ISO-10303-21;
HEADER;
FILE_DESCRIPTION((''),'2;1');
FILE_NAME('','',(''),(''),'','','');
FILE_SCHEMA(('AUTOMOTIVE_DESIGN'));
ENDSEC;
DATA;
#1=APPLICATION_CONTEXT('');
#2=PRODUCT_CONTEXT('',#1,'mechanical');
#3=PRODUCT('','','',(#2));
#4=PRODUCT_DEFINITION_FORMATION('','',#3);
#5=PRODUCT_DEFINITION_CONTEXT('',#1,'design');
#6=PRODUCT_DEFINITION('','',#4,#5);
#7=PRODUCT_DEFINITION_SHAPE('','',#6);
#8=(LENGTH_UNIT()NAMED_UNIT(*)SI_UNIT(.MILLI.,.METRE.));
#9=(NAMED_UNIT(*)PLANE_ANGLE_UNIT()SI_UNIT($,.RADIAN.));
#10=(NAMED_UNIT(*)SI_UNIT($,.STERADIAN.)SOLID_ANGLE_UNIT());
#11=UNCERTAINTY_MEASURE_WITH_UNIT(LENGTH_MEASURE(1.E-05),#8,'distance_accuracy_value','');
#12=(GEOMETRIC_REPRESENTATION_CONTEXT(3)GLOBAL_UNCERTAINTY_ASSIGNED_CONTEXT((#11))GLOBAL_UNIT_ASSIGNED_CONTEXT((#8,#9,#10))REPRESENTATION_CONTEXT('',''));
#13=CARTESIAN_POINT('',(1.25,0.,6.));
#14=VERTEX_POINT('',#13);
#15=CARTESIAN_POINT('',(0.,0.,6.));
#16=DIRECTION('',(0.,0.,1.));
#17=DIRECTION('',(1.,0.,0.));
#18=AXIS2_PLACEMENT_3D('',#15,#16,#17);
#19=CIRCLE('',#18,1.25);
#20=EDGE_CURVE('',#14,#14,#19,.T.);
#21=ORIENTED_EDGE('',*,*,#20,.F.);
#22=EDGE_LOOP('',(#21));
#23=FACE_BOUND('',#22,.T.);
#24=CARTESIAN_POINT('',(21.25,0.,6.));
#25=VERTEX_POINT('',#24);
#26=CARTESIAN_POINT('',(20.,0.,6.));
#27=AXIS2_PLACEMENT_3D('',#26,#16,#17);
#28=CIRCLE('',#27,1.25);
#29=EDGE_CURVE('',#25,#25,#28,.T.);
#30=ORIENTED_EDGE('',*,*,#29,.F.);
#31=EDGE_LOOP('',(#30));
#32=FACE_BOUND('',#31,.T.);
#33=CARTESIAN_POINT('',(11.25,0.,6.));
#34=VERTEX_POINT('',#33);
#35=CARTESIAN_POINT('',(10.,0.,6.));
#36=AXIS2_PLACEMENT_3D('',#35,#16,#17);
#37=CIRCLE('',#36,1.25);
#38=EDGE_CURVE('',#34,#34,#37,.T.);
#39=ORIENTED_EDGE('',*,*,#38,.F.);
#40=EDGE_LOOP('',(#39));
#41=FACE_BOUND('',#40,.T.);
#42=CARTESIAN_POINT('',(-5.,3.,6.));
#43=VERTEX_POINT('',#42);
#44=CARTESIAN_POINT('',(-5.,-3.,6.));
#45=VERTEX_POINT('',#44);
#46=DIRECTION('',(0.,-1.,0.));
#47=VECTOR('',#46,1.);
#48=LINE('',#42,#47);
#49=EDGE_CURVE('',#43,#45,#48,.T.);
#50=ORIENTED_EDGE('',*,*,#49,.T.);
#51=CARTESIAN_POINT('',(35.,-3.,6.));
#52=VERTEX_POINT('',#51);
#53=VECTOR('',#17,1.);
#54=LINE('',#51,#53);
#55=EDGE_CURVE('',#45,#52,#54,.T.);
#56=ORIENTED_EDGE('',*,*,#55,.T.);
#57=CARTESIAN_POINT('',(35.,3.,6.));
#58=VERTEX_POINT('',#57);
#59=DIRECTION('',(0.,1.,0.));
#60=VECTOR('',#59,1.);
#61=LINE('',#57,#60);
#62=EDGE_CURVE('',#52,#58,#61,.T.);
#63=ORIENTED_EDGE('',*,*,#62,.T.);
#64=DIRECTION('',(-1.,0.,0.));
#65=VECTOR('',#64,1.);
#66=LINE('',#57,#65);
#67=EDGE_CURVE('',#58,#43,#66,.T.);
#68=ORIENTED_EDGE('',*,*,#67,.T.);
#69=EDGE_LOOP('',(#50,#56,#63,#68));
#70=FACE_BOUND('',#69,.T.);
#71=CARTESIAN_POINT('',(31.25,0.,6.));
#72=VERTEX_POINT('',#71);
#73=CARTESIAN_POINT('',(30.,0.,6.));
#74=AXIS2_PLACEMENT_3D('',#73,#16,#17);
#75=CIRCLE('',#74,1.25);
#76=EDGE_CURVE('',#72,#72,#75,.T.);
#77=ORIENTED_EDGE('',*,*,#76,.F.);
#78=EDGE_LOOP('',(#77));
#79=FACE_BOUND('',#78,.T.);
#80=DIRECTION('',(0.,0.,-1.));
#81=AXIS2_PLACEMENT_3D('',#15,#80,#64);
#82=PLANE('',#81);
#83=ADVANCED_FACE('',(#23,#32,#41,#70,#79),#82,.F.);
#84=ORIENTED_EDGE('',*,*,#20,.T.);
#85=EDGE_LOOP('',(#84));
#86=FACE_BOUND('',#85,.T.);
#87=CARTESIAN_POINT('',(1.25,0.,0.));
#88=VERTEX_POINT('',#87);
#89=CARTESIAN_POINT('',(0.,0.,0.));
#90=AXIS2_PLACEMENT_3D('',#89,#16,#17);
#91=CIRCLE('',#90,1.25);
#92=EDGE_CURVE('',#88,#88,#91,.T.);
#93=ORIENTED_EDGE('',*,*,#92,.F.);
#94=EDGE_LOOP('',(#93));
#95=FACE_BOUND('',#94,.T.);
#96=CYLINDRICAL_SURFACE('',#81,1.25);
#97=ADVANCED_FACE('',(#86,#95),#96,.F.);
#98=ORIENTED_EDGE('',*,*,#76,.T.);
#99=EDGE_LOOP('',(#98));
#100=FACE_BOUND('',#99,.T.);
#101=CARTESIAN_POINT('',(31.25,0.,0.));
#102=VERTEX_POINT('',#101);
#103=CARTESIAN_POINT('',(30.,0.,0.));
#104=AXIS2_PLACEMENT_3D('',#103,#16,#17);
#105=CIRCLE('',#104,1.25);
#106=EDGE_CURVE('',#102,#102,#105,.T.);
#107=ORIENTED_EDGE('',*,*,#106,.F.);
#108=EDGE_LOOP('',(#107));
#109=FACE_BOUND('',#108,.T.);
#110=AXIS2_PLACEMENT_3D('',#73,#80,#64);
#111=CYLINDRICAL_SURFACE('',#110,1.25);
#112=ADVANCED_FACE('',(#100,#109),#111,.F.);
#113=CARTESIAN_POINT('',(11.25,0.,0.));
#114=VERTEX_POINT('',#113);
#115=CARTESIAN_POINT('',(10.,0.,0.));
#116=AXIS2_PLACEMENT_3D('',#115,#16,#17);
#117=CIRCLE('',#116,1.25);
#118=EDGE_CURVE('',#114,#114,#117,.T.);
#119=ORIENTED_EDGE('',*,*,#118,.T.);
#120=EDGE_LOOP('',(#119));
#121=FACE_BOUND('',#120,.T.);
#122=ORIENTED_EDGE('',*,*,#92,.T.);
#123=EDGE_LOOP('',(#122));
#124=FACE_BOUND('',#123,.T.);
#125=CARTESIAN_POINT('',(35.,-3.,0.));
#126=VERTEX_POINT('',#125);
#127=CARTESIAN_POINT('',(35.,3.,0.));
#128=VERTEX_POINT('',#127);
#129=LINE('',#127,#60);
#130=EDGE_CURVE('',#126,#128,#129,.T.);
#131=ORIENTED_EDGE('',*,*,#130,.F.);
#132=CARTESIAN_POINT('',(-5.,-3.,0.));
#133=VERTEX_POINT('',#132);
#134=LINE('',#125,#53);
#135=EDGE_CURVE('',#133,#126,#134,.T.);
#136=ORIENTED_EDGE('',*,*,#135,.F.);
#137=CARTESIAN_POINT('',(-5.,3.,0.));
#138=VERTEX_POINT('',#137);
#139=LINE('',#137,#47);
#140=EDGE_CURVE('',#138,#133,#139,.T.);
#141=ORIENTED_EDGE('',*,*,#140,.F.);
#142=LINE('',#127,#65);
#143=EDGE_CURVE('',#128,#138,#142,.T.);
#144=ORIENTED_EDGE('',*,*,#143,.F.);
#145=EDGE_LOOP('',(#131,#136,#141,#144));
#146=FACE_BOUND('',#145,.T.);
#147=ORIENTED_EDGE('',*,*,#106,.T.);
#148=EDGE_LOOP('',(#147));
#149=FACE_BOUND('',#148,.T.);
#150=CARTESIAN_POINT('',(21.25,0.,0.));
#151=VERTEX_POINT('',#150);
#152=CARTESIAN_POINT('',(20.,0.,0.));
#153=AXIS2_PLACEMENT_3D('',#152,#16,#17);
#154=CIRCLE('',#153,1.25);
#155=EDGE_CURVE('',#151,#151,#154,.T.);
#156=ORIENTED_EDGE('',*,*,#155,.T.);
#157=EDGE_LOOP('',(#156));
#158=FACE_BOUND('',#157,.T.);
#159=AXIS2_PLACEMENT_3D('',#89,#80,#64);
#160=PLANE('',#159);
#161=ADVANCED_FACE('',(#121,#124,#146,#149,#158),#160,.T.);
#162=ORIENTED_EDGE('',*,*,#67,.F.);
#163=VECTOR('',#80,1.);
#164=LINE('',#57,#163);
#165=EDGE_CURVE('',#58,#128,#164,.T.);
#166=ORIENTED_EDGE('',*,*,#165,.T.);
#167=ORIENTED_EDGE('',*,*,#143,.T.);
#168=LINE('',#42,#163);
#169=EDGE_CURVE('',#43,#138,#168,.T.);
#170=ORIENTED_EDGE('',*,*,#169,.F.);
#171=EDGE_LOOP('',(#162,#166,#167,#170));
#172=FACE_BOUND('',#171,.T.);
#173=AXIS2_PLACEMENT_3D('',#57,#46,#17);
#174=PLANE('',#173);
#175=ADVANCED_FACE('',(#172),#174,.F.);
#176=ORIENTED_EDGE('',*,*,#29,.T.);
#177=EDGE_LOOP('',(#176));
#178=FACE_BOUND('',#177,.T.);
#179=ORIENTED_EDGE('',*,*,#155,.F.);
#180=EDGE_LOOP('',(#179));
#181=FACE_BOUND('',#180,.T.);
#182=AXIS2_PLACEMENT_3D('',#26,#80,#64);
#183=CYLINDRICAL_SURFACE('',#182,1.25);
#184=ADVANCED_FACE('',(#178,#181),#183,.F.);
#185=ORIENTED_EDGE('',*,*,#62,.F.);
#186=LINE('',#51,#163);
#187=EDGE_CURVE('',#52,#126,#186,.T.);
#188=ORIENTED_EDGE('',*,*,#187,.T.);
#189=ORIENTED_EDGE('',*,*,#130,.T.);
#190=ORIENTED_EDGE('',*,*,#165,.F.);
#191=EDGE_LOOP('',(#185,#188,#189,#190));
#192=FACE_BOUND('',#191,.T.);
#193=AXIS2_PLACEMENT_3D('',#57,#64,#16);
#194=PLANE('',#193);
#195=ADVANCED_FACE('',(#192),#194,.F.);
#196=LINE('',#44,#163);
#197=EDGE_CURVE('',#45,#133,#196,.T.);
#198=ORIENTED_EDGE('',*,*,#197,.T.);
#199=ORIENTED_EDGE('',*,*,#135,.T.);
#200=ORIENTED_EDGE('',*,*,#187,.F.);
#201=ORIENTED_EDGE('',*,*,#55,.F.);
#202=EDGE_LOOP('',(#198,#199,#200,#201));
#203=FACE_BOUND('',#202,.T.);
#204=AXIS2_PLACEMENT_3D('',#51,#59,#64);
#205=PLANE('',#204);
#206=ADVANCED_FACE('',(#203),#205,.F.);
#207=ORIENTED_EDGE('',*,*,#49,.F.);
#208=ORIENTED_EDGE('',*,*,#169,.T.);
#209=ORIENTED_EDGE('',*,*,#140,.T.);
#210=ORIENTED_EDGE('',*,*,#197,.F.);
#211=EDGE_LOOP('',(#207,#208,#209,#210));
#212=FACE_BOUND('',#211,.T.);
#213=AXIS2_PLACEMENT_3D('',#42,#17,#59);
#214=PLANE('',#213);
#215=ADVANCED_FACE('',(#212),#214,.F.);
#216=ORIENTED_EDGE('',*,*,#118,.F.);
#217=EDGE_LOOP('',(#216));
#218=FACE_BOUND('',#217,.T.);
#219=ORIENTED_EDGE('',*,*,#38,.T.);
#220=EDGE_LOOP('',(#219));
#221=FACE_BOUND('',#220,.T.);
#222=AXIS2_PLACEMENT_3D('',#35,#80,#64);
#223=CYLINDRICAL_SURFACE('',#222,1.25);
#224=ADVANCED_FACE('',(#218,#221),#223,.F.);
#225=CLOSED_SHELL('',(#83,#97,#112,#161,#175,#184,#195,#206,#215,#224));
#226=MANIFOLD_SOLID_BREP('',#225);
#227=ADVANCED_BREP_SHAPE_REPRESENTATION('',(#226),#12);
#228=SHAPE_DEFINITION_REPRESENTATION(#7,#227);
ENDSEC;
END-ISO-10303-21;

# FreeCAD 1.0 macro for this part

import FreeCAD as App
import Part
import Sketcher
from FreeCAD import Vector


def add_polygon(sketch, points):
    """Adds a closed chain of lines whose ends are joined by coincident constraints."""
    first, n = sketch.GeometryCount, len(points)
    for a, b in zip(points, points[1:] + points[:1]):
        sketch.addGeometry(Part.LineSegment(App.Vector(*a, 0), App.Vector(*b, 0)), False)
    for i in range(n):
        sketch.addConstraint(Sketcher.Constraint("Coincident", first + i, 2, first + (i + 1) % n, 1))

doc = App.newDocument("Part")
body = doc.addObject("PartDesign::Body", "Body")

sketch1 = body.newObject("Sketcher::SketchObject", "Sketch")
sketch1.AttachmentSupport = (doc.getObject("XY_Plane"), [""])
sketch1.MapMode = "FlatFace"
add_polygon(sketch1, [(-5, 3), (-5, -3), (35, -3), (35, 3)])
sketch1.addGeometry(Part.Circle(Vector(0, 0, 0), Vector(0, 0, 1), 1.2), False)
sketch1.addGeometry(Part.Circle(Vector(10, 0, 0), Vector(0, 0, 1), 1.2), False)
sketch1.addGeometry(Part.Circle(Vector(20, 0, 0), Vector(0, 0, 1), 1.2), False)
sketch1.addGeometry(Part.Circle(Vector(30, 0, 0), Vector(0, 0, 1), 1.2), False)
sketch1.addConstraint([
    Sketcher.Constraint("Vertical", 0),
    Sketcher.Constraint("Horizontal", 1),
    Sketcher.Constraint("Vertical", 2),
    Sketcher.Constraint("Horizontal", 3),
    Sketcher.Constraint("Coincident", 4, 3, -1, 1),
    Sketcher.Constraint("Equal", 4, 5),
    Sketcher.Constraint("Equal", 5, 6),
    Sketcher.Constraint("Equal", 6, 7),
    Sketcher.Constraint("PointOnObject", 5, 3, -1),
    Sketcher.Constraint("PointOnObject", 6, 3, -1),
    Sketcher.Constraint("PointOnObject", 7, 3, -1),
    Sketcher.Constraint("Diameter", 4, 2.5),
    Sketcher.Constraint("DistanceX", 1, 1, 1, 2, 40.0),
    Sketcher.Constraint("DistanceY", 0, 2, 0, 1, 6.0),
    Sketcher.Constraint("DistanceX", -1, 1, 5, 3, 10.0),
    Sketcher.Constraint("DistanceX", -1, 1, 6, 3, 20.0),
    Sketcher.Constraint("DistanceX", -1, 1, 7, 3, 30.0),
    Sketcher.Constraint("DistanceX", 0, 2, -1, 1, 5.0),
    Sketcher.Constraint("DistanceY", 0, 2, -1, 1, 3.0),
])
pad1 = body.newObject("PartDesign::Pad", "Pad")
pad1.Profile = sketch1
pad1.Length = 6

doc.recompute()
